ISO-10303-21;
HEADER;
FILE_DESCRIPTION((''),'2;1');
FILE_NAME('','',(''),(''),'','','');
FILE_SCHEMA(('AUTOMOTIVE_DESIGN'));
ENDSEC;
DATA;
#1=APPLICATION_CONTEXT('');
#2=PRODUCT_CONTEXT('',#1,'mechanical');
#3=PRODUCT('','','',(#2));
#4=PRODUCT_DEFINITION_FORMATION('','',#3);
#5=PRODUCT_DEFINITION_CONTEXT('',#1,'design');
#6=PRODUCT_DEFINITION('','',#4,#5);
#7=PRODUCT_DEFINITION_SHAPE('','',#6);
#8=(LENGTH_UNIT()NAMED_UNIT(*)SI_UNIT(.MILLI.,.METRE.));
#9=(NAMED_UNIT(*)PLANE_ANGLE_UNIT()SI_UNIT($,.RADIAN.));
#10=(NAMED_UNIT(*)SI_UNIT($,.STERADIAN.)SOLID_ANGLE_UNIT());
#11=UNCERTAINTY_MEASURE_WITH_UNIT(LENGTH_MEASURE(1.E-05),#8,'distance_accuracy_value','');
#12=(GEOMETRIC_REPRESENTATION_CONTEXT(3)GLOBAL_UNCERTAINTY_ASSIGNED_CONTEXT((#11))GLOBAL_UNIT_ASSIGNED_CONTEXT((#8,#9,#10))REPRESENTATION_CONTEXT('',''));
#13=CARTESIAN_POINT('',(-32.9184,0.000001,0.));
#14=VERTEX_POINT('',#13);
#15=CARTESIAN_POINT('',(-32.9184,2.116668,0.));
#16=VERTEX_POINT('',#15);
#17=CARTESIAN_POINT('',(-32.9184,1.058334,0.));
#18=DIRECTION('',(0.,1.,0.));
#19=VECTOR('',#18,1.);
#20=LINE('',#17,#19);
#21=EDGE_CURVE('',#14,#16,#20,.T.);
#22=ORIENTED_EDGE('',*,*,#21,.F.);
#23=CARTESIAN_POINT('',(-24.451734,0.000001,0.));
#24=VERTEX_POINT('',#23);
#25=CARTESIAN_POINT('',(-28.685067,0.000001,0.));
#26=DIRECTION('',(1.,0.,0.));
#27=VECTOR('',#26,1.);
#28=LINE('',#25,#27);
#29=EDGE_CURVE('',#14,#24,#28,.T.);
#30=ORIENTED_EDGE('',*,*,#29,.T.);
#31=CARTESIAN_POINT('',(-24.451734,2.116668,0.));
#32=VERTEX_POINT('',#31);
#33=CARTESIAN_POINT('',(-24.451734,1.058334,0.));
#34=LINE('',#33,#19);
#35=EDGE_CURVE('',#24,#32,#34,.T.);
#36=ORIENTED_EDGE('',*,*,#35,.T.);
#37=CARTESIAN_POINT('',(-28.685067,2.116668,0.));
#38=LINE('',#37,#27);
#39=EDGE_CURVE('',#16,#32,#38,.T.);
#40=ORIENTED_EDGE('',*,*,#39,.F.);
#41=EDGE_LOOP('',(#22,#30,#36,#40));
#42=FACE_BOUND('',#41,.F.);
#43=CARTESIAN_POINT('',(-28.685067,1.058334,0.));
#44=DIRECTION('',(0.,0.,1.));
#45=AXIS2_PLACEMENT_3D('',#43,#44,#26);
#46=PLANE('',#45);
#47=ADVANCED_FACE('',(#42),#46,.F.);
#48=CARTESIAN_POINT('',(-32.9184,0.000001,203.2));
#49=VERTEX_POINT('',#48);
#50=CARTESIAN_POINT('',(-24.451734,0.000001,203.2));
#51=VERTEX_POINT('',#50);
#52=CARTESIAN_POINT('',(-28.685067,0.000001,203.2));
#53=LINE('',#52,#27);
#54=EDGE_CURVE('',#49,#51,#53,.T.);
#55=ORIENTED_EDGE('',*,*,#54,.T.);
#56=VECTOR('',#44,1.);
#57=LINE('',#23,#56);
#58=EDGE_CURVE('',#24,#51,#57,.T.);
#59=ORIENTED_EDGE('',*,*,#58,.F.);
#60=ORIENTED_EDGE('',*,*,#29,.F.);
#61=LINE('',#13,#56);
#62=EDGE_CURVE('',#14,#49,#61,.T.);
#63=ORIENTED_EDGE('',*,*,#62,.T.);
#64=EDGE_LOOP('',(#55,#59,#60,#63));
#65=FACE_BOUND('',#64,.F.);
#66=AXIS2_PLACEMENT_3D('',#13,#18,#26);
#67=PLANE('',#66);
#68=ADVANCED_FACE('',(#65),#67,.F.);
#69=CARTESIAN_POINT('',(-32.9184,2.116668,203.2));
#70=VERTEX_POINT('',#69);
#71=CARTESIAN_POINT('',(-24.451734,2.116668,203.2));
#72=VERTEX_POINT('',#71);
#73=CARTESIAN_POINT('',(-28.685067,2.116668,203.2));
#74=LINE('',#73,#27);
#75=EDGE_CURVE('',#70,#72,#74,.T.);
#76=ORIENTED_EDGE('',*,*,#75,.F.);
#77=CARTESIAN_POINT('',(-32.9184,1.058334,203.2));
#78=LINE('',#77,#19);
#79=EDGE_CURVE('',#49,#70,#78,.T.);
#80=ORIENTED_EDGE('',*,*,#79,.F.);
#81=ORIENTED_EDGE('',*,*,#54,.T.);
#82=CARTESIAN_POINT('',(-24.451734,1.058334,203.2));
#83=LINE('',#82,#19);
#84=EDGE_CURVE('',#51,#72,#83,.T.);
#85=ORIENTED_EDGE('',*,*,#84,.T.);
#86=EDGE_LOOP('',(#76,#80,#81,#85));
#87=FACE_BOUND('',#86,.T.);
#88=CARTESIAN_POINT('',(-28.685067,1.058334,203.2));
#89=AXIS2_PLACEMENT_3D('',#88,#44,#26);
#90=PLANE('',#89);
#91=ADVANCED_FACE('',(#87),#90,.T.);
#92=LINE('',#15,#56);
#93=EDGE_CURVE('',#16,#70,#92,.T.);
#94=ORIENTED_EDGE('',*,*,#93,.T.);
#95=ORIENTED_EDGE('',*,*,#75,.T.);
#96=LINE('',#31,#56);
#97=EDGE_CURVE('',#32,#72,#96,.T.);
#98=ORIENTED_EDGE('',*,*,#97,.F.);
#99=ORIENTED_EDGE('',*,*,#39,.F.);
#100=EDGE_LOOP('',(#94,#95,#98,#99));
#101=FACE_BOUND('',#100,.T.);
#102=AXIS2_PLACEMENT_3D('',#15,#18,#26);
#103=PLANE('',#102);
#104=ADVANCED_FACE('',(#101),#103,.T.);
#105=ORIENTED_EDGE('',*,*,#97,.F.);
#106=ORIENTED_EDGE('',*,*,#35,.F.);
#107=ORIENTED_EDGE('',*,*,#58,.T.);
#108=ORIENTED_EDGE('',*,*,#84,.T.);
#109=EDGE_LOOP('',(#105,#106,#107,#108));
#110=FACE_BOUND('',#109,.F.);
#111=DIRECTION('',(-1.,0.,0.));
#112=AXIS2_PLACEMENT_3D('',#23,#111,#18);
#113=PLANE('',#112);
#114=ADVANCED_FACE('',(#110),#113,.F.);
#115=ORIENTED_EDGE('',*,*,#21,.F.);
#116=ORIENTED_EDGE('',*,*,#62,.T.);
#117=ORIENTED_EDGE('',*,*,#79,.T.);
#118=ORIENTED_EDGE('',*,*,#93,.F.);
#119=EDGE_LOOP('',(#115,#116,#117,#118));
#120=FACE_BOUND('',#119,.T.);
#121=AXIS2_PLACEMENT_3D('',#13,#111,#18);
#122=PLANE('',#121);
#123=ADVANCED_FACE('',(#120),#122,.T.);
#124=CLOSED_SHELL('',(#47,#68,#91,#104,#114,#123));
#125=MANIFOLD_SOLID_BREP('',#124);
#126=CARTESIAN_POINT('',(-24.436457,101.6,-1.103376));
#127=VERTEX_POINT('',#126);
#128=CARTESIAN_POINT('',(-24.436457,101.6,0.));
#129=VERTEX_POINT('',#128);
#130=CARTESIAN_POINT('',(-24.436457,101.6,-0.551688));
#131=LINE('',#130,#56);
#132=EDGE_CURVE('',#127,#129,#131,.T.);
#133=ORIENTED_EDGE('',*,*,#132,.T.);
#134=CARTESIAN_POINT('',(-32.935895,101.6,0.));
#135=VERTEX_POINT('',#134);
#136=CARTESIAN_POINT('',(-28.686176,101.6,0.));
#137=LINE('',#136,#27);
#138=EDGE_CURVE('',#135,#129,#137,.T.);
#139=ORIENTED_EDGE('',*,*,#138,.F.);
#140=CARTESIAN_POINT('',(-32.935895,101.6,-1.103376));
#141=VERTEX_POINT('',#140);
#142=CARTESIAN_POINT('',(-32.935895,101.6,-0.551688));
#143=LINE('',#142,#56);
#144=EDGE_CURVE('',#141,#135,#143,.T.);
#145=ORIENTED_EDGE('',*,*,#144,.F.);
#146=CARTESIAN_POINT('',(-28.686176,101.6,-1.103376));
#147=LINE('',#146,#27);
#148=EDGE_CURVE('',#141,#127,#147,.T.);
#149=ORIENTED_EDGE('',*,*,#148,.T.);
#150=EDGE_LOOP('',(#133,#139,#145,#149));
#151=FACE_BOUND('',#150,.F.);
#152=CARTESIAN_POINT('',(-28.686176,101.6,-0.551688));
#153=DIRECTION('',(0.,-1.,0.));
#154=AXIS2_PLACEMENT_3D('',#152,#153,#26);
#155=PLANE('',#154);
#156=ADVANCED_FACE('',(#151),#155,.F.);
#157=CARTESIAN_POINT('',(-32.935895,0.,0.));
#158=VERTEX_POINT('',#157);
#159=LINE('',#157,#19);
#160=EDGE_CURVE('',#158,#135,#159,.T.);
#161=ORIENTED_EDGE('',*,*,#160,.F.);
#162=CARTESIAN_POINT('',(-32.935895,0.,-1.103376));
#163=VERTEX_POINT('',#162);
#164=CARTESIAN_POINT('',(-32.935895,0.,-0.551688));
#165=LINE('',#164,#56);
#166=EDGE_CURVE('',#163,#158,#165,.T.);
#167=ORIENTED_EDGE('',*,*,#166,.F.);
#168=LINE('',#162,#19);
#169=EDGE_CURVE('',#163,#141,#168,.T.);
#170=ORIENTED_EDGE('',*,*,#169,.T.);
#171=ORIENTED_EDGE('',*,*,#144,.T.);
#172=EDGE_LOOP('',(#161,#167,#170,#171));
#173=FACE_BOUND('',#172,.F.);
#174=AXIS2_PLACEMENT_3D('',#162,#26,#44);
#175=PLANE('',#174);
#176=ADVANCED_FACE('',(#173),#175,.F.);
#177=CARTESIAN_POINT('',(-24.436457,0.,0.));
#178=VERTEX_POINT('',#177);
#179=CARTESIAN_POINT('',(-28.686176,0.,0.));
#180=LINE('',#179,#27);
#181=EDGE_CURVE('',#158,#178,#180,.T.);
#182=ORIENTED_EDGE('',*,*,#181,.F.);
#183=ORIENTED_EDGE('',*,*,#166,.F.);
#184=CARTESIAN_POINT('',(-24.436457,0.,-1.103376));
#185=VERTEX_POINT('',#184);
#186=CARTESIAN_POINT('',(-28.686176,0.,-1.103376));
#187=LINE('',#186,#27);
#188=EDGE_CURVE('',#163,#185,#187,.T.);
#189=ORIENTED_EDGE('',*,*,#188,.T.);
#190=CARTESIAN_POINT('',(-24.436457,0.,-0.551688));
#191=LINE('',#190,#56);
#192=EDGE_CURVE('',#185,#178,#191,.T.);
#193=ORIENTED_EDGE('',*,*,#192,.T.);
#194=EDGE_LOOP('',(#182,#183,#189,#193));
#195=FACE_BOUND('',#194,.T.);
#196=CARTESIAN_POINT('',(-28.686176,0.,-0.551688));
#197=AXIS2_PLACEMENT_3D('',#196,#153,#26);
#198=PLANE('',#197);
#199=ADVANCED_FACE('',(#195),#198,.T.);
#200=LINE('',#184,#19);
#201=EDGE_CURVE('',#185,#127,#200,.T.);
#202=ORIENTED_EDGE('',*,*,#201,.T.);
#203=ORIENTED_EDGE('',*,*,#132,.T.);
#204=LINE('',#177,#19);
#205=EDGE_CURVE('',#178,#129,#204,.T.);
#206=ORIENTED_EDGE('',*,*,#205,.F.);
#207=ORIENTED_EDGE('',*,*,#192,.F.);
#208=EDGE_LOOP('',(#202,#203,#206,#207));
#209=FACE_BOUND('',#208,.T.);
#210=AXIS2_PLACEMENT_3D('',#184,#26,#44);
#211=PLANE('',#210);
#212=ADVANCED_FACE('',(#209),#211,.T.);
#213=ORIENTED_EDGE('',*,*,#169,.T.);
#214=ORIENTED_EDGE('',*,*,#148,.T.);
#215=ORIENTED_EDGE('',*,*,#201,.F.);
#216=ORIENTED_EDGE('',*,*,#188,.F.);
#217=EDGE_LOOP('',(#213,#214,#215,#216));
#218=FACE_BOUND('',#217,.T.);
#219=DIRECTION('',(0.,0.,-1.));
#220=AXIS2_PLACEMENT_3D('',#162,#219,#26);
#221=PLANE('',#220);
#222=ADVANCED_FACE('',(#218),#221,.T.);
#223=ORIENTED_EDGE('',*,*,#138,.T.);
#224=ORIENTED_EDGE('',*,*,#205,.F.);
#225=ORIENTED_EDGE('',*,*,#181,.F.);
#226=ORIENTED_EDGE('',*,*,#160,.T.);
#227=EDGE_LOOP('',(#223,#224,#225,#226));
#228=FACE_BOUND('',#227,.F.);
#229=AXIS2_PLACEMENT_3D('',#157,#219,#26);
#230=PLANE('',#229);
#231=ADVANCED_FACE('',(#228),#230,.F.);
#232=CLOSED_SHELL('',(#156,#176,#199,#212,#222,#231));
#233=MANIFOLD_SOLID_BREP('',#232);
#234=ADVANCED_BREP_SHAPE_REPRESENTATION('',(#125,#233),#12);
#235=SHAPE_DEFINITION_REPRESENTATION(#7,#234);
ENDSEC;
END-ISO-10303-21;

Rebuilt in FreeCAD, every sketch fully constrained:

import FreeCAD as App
import Part
import Sketcher
Q = App.Units.Quantity


def add_polygon(sketch, points):
    """Adds a closed chain of lines whose ends are joined by coincident constraints."""
    first, n = sketch.GeometryCount, len(points)
    for a, b in zip(points, points[1:] + points[:1]):
        sketch.addGeometry(Part.LineSegment(App.Vector(*a, 0), App.Vector(*b, 0)), False)
    for i in range(n):
        sketch.addConstraint(Sketcher.Constraint("Coincident", first + i, 2, first + (i + 1) % n, 1))

doc = App.newDocument("Part")
params = doc.addObject("Spreadsheet::Sheet", "Params")
for row, (alias, value) in enumerate([
    ("pad1_length", "8 in"),
    ("pad2_length", "4 in"),
], start=1):
    params.set(f"A{row}", alias)
    params.set(f"B{row}", "=" + value)
    params.setAlias(f"B{row}", alias)

body = doc.addObject("PartDesign::Body", "Body")

# Sketch on XY plane
sketch1 = doc.addObject("Sketcher::SketchObject", "Sketch")
body.addObject(sketch1)
sketch1.AttachmentSupport = (doc.XY_Plane, [""])
sketch1.MapMode = "FlatFace"
add_polygon(sketch1, [(-32.9, 2.1), (-32.9, 0), (-24.5, 0), (-24.5, 2.1)])  # lines 0-3
sketch1.addConstraint([
    Sketcher.Constraint("Vertical", 0),
    Sketcher.Constraint("Horizontal", 1),
    Sketcher.Constraint("Vertical", 2),
    Sketcher.Constraint("Horizontal", 3),
    Sketcher.Constraint("PointOnObject", 0, 2, -1),
    Sketcher.Constraint("DistanceX", 0, 2, -1, 1, Q("1.296 in")),
    Sketcher.Constraint("DistanceX", 1, 1, 1, 2, 8.466666),
    Sketcher.Constraint("DistanceY", 0, 2, 0, 1, 2.116667),
])
pad1 = doc.addObject("PartDesign::Pad", "Pad")
body.addObject(pad1)
pad1.Profile = sketch1
pad1.setExpression("Length", "Params.pad1_length")
body2 = doc.addObject("PartDesign::Body", "Body001")

# Sketch on XZ plane
sketch2 = doc.addObject("Sketcher::SketchObject", "Sketch001")
body2.addObject(sketch2)
sketch2.AttachmentSupport = (doc.getObject("XZ_Plane001"), [""])
sketch2.MapMode = "FlatFace"
add_polygon(sketch2, [(-32.9, 0), (-32.9, -1.1), (-24.4, -1.1), (-24.4, 0)])  # lines 0-3
sketch2.addConstraint([
    Sketcher.Constraint("Vertical", 0),
    Sketcher.Constraint("Horizontal", 1),
    Sketcher.Constraint("Vertical", 2),
    Sketcher.Constraint("Horizontal", 3),
    Sketcher.Constraint("PointOnObject", 2, 2, -1),
    Sketcher.Constraint("DistanceX", 1, 1, 1, 2, 8.499438),
    Sketcher.Constraint("DistanceY", 0, 2, 0, 1, 1.103376),
    Sketcher.Constraint("DistanceX", 0, 2, -1, 1, 32.935895),
])
pad2 = doc.addObject("PartDesign::Pad", "Pad001")
body2.addObject(pad2)
pad2.Profile = sketch2
pad2.setExpression("Length", "Params.pad2_length")
pad2.Reversed = True

doc.recompute()
